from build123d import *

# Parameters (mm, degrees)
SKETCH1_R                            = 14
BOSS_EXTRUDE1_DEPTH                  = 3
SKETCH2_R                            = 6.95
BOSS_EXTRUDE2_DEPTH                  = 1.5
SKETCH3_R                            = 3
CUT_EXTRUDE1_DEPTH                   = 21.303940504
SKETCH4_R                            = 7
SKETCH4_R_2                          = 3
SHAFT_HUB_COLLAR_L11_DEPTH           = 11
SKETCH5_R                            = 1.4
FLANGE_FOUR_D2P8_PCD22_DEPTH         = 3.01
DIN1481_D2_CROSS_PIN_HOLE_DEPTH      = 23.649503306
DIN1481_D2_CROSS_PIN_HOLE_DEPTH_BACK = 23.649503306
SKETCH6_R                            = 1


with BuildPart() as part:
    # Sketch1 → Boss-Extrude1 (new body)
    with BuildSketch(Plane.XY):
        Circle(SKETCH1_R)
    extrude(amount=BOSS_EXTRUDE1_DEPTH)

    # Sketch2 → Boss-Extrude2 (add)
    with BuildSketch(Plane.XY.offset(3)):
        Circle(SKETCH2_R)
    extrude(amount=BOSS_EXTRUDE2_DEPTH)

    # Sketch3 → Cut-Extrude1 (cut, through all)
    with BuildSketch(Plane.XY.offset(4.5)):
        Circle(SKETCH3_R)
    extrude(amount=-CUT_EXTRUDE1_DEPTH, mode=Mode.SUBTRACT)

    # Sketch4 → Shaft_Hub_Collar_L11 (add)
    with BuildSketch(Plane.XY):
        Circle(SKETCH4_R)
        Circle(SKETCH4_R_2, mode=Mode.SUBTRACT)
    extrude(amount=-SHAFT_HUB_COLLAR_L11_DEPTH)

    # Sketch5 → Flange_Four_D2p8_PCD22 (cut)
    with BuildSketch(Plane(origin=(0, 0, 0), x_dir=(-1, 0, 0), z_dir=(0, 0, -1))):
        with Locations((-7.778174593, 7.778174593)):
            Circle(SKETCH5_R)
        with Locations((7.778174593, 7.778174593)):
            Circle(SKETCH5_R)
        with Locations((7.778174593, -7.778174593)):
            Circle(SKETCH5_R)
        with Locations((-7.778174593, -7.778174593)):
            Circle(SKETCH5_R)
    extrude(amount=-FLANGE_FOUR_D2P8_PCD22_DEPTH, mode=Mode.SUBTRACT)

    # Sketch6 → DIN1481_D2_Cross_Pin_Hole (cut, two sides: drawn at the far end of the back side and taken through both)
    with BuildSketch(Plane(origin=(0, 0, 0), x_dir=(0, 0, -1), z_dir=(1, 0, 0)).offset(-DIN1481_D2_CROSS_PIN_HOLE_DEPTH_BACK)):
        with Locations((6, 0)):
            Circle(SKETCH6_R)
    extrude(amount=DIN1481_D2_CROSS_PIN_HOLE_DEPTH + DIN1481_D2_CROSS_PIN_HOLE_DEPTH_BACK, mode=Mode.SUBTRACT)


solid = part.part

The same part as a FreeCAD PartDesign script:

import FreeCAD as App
import Part
import Sketcher
from FreeCAD import Vector

doc = App.newDocument("Part")
params = doc.addObject("Spreadsheet::Sheet", "Params")
for row, (alias, value) in enumerate([
    ("sketch1_diameter", "28 mm"),
    ("pad1_length", "3 mm"),
    ("sketch2_diameter", "13.9 mm"),
    ("pad2_length", "1.5 mm"),
    ("sketch3_diameter", "6 mm"),
    ("sketch4_diameter", "14 mm"),
    ("sketch4_diameter2", "6 mm"),
    ("pad3_length", "11 mm"),
    ("sketch5_diameter", "2.8 mm"),
    ("pocket2_length", "3.01 mm"),
    ("sketch6_diameter", "2 mm"),
], start=1):
    params.set(f"A{row}", alias)
    params.set(f"B{row}", "=" + value)
    params.setAlias(f"B{row}", alias)

body = doc.addObject("PartDesign::Body", "Body")

# Sketch on XY plane
sketch1 = body.newObject("Sketcher::SketchObject", "Sketch")
sketch1.AttachmentSupport = (doc.getObject("XY_Plane"), [""])
sketch1.MapMode = "FlatFace"
sketch1.addGeometry(Part.Circle(Vector(0, 0, 0), Vector(0, 0, 1), 14), False)
sketch1.addConstraint([
    Sketcher.Constraint("Coincident", 0, 3, -1, 1),
    Sketcher.Constraint("Diameter", 0, 28.0),
])
sketch1.setExpression("Constraints[1]", "Params.sketch1_diameter")
pad1 = body.newObject("PartDesign::Pad", "Pad")
pad1.Profile = sketch1
pad1.setExpression("Length", "Params.pad1_length")

# Sketch on XY plane
sketch2 = body.newObject("Sketcher::SketchObject", "Sketch001")
sketch2.AttachmentSupport = (doc.getObject("XY_Plane"), [""])
sketch2.MapMode = "FlatFace"
sketch2.AttachmentOffset = App.Placement(Vector(0, 0, 3), App.Rotation())
sketch2.addGeometry(Part.Circle(Vector(0, 0, 0), Vector(0, 0, 1), 7), False)
sketch2.addConstraint([
    Sketcher.Constraint("Coincident", 0, 3, -1, 1),
    Sketcher.Constraint("Diameter", 0, 13.9),
])
sketch2.setExpression("Constraints[1]", "Params.sketch2_diameter")
pad2 = body.newObject("PartDesign::Pad", "Pad001")
pad2.Profile = sketch2
pad2.setExpression("Length", "Params.pad2_length")

# Sketch on XY plane
sketch3 = body.newObject("Sketcher::SketchObject", "Sketch002")
sketch3.AttachmentSupport = (doc.getObject("XY_Plane"), [""])
sketch3.MapMode = "FlatFace"
sketch3.AttachmentOffset = App.Placement(Vector(0, 0, 4.5), App.Rotation())
sketch3.addGeometry(Part.Circle(Vector(0, 0, 0), Vector(0, 0, 1), 3), False)
sketch3.addConstraint([
    Sketcher.Constraint("Coincident", 0, 3, -1, 1),
    Sketcher.Constraint("Diameter", 0, 6.0),
])
sketch3.setExpression("Constraints[1]", "Params.sketch3_diameter")
pocket1 = body.newObject("PartDesign::Pocket", "Pocket")
pocket1.Profile = sketch3
pocket1.Type = "ThroughAll"

# Sketch on XY plane
sketch4 = body.newObject("Sketcher::SketchObject", "Sketch003")
sketch4.AttachmentSupport = (doc.getObject("XY_Plane"), [""])
sketch4.MapMode = "FlatFace"
sketch4.addGeometry([
    Part.Circle(Vector(0, 0, 0), Vector(0, 0, 1), 7),
    Part.Circle(Vector(0, 0, 0), Vector(0, 0, 1), 3),
], False)
sketch4.addConstraint([
    Sketcher.Constraint("Coincident", 0, 3, -1, 1),
    Sketcher.Constraint("Coincident", 1, 3, -1, 1),
    Sketcher.Constraint("Diameter", 0, 14.0),
    Sketcher.Constraint("Diameter", 1, 6.0),
])
sketch4.setExpression("Constraints[2]", "Params.sketch4_diameter")
sketch4.setExpression("Constraints[3]", "Params.sketch4_diameter2")
pad3 = body.newObject("PartDesign::Pad", "Pad002")
pad3.Profile = sketch4
pad3.setExpression("Length", "Params.pad3_length")
pad3.Reversed = True

# Sketch on XY plane
sketch5 = body.newObject("Sketcher::SketchObject", "Sketch004")
sketch5.AttachmentSupport = (doc.getObject("XY_Plane"), [""])
sketch5.MapMode = "FlatFace"
sketch5.addGeometry([
    Part.Circle(Vector(7.8, 7.8, 0), Vector(0, 0, 1), 1.4),
    Part.Circle(Vector(-7.8, 7.8, 0), Vector(0, 0, 1), 1.4),
    Part.Circle(Vector(-7.8, -7.8, 0), Vector(0, 0, 1), 1.4),
    Part.Circle(Vector(7.8, -7.8, 0), Vector(0, 0, 1), 1.4),
], False)
sketch5.addConstraint([
    Sketcher.Constraint("Equal", 0, 1),
    Sketcher.Constraint("Equal", 1, 2),
    Sketcher.Constraint("Equal", 2, 3),
    Sketcher.Constraint("Symmetric", 0, 3, 2, 3, -1, 1),
    Sketcher.Constraint("Symmetric", 1, 3, 3, 3, -1, 1),
    Sketcher.Constraint("Symmetric", 0, 3, 1, 3, -2),
    Sketcher.Constraint("Diameter", 0, 2.8),
    Sketcher.Constraint("DistanceX", 1, 3, 0, 3, 15.556349),
    Sketcher.Constraint("DistanceY", 2, 3, 1, 3, 15.556349),
])
sketch5.setExpression("Constraints[6]", "Params.sketch5_diameter")
pocket2 = body.newObject("PartDesign::Pocket", "Pocket001")
pocket2.Profile = sketch5
pocket2.setExpression("Length", "Params.pocket2_length")
pocket2.Reversed = True

# Sketch on YZ plane
sketch6 = body.newObject("Sketcher::SketchObject", "Sketch005")
sketch6.AttachmentSupport = (doc.getObject("YZ_Plane"), [""])
sketch6.MapMode = "FlatFace"
sketch6.addGeometry(Part.Circle(Vector(0, -6, 0), Vector(0, 0, 1), 1), False)
sketch6.addConstraint([
    Sketcher.Constraint("PointOnObject", 0, 3, -2),
    Sketcher.Constraint("Diameter", 0, 2.0),
    Sketcher.Constraint("DistanceY", 0, 3, -1, 1, 6.0),
])
sketch6.setExpression("Constraints[1]", "Params.sketch6_diameter")
pocket3 = body.newObject("PartDesign::Pocket", "Pocket002")
pocket3.Profile = sketch6
pocket3.Type = "ThroughAll"
pocket3.Midplane = True

doc.recompute()
